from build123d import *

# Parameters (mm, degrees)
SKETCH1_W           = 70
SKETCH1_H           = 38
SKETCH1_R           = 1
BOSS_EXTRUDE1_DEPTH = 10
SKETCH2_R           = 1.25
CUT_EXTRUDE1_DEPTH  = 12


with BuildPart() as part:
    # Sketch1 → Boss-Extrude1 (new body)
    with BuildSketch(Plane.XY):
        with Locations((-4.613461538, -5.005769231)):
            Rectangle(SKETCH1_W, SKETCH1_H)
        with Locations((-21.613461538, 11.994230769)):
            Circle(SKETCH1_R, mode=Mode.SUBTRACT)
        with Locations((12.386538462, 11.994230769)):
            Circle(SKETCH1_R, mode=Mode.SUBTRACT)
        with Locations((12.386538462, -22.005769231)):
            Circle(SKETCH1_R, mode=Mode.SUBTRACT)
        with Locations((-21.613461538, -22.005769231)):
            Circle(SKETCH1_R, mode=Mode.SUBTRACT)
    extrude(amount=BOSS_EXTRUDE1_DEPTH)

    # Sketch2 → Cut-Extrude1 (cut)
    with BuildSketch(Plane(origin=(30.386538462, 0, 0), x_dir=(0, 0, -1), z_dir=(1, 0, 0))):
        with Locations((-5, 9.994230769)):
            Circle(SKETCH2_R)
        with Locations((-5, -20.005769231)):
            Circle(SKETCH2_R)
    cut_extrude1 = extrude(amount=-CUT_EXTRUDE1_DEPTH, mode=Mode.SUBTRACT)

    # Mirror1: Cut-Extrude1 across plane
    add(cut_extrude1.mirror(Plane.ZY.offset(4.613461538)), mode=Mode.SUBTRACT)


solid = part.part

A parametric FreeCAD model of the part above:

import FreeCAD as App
import Part
import Sketcher


def add_polygon(sketch, points):
    """Adds a closed chain of lines whose ends are joined by coincident constraints."""
    first, n = sketch.GeometryCount, len(points)
    for a, b in zip(points, points[1:] + points[:1]):
        sketch.addGeometry(Part.LineSegment(App.Vector(*a, 0), App.Vector(*b, 0)), False)
    for i in range(n):
        sketch.addConstraint(Sketcher.Constraint("Coincident", first + i, 2, first + (i + 1) % n, 1))

doc = App.newDocument("Part")
body = doc.addObject("PartDesign::Body", "Body")

sketch1 = doc.addObject("Sketcher::SketchObject", "Sketch")
body.addObject(sketch1)
sketch1.AttachmentSupport = (doc.XY_Plane, [""])
sketch1.MapMode = "FlatFace"
add_polygon(sketch1, [(-39.6, 14), (-39.6, -24), (30.4, -24), (30.4, 14)])
sketch1.addGeometry(Part.Circle(App.Vector(-21.6, -22, 0), App.Vector(0, 0, 1), 1), False)
sketch1.addGeometry(Part.Circle(App.Vector(12.4, -22, 0), App.Vector(0, 0, 1), 1), False)
sketch1.addGeometry(Part.Circle(App.Vector(-21.6, 12, 0), App.Vector(0, 0, 1), 1), False)
sketch1.addGeometry(Part.Circle(App.Vector(12.4, 12, 0), App.Vector(0, 0, 1), 1), False)
sketch1.addConstraint(Sketcher.Constraint("Vertical", 0))
sketch1.addConstraint(Sketcher.Constraint("Horizontal", 1))
sketch1.addConstraint(Sketcher.Constraint("Vertical", 2))
sketch1.addConstraint(Sketcher.Constraint("Horizontal", 3))
sketch1.addConstraint(Sketcher.Constraint("Equal", 4, 5))
sketch1.addConstraint(Sketcher.Constraint("Equal", 5, 6))
sketch1.addConstraint(Sketcher.Constraint("Equal", 6, 7))
sketch1.addConstraint(Sketcher.Constraint("Horizontal", 4, 3, 5, 3))
sketch1.addConstraint(Sketcher.Constraint("Horizontal", 6, 3, 7, 3))
sketch1.addConstraint(Sketcher.Constraint("Vertical", 4, 3, 6, 3))
sketch1.addConstraint(Sketcher.Constraint("Vertical", 5, 3, 7, 3))
sketch1.addConstraint(Sketcher.Constraint("Diameter", 4, 2.0))
sketch1.addConstraint(Sketcher.Constraint("DistanceX", 1, 1, 1, 2, 70.0))
sketch1.addConstraint(Sketcher.Constraint("DistanceY", 0, 2, 0, 1, 38.0))
sketch1.addConstraint(Sketcher.Constraint("DistanceX", 4, 3, 5, 3, 34.0))
sketch1.addConstraint(Sketcher.Constraint("DistanceY", 4, 3, 6, 3, 34.0))
sketch1.addConstraint(Sketcher.Constraint("DistanceX", 0, 2, 4, 3, 18.0))
sketch1.addConstraint(Sketcher.Constraint("DistanceY", 0, 2, 4, 3, 2.0))
sketch1.addConstraint(Sketcher.Constraint("DistanceX", 4, 3, -1, 1, 21.613462))
sketch1.addConstraint(Sketcher.Constraint("DistanceY", 4, 3, -1, 1, 22.005769))
pad1 = doc.addObject("PartDesign::Pad", "Pad")
body.addObject(pad1)
pad1.Profile = sketch1
pad1.Length = 10

sketch2 = doc.addObject("Sketcher::SketchObject", "Sketch001")
body.addObject(sketch2)
sketch2.AttachmentSupport = (doc.YZ_Plane, [""])
sketch2.MapMode = "FlatFace"
sketch2.AttachmentOffset = App.Placement(App.Vector(0, 0, 30.386538), App.Rotation())
sketch2.addGeometry(Part.Circle(App.Vector(10, 5, 0), App.Vector(0, 0, 1), 1.2), False)
sketch2.addGeometry(Part.Circle(App.Vector(-20, 5, 0), App.Vector(0, 0, 1), 1.2), False)
sketch2.addConstraint(Sketcher.Constraint("Equal", 0, 1))
sketch2.addConstraint(Sketcher.Constraint("Horizontal", 0, 3, 1, 3))
sketch2.addConstraint(Sketcher.Constraint("Diameter", 0, 2.5))
sketch2.addConstraint(Sketcher.Constraint("DistanceY", -1, 1, 0, 3, 5.0))
sketch2.addConstraint(Sketcher.Constraint("DistanceX", 1, 3, 0, 3, 30.0))
sketch2.addConstraint(Sketcher.Constraint("DistanceX", -1, 1, 0, 3, 9.994231))
pocket1 = doc.addObject("PartDesign::Pocket", "Pocket")
body.addObject(pocket1)
pocket1.Profile = sketch2
pocket1.Length = 12
doc.recompute()

datumplane = doc.addObject("PartDesign::Plane", "DatumPlane")
body.addObject(datumplane)
datumplane.AttachmentSupport = (doc.YZ_Plane, [""])
datumplane.MapMode = "FlatFace"
datumplane.AttachmentOffset = App.Placement(App.Vector(0, 0, -4.613462), App.Rotation())
mirrored = doc.addObject("PartDesign::Mirrored", "Mirrored")
body.addObject(mirrored)
mirrored.Originals = [pocket1]
mirrored.MirrorPlane = (datumplane, [""])
body.Tip = mirrored

doc.recompute()
